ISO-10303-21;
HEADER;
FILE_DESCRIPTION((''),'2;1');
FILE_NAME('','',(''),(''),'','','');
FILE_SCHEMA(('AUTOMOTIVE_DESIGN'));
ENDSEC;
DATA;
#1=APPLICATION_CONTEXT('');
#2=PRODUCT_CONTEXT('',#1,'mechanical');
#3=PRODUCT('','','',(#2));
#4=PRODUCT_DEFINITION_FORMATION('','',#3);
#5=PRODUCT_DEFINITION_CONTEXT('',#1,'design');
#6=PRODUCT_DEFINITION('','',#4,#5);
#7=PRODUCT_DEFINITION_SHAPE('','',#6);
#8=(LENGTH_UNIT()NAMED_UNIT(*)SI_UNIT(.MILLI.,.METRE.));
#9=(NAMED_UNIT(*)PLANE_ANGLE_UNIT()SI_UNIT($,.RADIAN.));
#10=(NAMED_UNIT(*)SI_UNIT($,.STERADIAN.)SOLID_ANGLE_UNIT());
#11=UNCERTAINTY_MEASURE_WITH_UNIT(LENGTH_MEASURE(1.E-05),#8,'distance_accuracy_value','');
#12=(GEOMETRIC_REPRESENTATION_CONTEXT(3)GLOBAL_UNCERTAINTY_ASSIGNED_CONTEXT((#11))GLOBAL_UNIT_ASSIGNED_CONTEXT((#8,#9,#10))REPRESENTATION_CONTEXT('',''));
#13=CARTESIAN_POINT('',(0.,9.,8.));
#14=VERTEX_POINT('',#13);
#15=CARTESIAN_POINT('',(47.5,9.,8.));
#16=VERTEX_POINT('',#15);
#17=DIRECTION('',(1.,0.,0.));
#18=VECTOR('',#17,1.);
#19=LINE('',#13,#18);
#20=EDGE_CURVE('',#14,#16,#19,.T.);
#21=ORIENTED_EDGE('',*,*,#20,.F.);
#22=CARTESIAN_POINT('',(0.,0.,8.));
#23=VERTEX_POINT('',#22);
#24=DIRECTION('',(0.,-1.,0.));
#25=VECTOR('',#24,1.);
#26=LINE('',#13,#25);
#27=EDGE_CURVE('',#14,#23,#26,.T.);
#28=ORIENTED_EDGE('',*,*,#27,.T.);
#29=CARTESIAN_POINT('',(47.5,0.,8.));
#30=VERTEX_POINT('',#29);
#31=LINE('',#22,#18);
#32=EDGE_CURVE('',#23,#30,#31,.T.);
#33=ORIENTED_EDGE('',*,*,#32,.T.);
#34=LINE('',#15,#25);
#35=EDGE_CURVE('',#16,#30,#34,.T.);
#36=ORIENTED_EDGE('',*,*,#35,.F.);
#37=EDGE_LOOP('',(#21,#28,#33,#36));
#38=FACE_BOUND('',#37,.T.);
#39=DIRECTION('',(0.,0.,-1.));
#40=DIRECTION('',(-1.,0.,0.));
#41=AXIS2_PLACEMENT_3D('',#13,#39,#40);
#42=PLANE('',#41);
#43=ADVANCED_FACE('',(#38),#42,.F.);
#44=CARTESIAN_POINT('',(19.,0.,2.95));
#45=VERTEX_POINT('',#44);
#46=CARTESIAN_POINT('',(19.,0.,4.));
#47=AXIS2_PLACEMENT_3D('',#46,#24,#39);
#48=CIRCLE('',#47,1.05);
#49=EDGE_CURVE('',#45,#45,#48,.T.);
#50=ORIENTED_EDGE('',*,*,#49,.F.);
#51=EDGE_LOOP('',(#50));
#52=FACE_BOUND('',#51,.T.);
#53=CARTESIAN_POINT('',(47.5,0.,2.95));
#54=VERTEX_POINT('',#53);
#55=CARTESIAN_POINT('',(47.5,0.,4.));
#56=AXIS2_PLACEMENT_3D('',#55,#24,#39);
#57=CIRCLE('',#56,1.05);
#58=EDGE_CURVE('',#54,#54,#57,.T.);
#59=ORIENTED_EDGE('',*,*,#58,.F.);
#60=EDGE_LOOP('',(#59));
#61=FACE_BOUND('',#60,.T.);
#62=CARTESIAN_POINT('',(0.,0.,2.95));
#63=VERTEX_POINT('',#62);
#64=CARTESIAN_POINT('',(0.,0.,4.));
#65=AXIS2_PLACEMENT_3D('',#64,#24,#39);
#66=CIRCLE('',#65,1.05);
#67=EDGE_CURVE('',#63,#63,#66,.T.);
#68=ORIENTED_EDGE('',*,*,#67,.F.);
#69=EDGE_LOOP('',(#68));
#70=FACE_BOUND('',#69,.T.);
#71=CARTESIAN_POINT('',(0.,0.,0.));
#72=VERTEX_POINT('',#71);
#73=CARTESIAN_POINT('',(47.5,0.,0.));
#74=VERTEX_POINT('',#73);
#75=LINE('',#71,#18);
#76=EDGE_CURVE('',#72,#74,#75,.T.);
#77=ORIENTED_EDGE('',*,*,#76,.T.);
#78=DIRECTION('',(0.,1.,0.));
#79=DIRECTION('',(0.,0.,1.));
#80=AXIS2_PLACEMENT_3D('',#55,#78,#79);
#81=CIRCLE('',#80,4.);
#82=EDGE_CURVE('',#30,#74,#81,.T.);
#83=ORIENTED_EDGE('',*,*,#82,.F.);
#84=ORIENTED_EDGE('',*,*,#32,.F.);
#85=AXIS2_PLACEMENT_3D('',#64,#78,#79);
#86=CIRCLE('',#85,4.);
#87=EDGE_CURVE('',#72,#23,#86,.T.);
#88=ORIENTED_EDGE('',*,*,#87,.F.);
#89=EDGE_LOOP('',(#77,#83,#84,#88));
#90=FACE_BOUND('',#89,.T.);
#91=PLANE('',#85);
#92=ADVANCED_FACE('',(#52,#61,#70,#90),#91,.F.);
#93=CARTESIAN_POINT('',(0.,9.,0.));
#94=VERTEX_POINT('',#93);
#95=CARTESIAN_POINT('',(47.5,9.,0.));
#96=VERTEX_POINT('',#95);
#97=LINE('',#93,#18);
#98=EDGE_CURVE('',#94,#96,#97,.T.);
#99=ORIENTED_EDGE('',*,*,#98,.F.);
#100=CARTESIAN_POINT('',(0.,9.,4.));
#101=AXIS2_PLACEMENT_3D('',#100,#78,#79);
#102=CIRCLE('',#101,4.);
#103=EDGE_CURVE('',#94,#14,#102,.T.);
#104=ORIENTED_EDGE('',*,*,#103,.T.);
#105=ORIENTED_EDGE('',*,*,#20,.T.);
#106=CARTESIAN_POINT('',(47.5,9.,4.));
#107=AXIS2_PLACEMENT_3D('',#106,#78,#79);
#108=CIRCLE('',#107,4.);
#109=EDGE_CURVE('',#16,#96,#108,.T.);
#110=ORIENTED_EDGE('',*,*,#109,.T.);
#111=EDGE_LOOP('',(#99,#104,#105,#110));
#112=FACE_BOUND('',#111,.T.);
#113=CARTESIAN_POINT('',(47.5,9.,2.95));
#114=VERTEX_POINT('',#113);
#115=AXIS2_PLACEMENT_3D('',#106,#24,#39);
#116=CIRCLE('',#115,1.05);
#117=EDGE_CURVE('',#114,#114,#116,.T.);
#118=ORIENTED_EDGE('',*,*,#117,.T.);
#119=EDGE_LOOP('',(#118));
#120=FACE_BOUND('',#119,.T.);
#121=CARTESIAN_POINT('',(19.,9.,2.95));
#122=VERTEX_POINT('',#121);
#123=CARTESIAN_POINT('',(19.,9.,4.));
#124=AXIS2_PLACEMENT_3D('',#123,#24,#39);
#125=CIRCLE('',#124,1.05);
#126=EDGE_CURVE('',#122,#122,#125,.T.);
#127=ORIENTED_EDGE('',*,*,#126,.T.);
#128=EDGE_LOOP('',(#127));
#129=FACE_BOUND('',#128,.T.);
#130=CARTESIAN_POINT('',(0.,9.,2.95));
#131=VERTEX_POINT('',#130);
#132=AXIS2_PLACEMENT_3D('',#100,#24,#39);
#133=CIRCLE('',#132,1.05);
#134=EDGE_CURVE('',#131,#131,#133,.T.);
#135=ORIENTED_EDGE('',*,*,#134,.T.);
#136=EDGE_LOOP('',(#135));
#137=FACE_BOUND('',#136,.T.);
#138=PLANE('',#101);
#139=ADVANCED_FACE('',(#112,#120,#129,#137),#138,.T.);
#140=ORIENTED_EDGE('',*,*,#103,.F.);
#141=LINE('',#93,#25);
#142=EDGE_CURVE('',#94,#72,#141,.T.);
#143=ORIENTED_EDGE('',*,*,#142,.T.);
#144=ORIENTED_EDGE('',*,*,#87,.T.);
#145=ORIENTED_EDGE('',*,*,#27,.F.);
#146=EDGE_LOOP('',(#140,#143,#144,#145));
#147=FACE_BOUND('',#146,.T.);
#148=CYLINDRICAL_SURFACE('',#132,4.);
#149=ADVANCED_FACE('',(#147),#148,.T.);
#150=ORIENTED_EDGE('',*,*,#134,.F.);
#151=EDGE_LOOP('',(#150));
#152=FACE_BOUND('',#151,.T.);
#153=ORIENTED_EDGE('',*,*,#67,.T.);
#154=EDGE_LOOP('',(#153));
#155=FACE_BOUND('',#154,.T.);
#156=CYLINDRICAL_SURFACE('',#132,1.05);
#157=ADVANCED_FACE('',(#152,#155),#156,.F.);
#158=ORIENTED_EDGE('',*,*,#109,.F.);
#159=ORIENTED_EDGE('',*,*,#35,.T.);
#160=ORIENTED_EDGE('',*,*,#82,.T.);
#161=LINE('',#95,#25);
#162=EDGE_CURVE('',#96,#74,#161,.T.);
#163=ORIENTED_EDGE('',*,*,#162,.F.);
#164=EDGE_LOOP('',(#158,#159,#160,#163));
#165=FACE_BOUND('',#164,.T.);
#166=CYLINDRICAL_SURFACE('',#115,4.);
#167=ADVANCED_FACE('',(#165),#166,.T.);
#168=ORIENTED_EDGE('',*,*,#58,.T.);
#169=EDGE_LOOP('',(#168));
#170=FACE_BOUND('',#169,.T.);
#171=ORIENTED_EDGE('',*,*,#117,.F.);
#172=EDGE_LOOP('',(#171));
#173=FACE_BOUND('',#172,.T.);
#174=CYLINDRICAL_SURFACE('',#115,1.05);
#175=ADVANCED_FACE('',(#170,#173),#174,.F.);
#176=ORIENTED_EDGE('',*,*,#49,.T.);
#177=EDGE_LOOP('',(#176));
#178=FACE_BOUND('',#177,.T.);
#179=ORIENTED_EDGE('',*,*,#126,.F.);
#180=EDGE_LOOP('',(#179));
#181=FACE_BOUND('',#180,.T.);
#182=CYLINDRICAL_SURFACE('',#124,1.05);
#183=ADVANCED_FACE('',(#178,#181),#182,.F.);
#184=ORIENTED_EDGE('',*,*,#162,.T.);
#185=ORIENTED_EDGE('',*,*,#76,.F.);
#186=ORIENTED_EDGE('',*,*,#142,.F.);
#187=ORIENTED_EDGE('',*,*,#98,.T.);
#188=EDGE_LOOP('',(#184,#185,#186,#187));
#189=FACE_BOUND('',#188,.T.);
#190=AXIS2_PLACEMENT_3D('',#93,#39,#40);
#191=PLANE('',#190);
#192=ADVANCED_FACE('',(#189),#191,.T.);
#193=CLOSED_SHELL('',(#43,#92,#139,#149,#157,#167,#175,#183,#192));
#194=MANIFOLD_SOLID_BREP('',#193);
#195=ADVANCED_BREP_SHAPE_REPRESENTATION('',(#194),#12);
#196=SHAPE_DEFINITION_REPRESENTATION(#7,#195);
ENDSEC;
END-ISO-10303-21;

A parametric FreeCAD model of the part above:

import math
import FreeCAD as App
import Part
import Sketcher
from FreeCAD import Vector

doc = App.newDocument("Part")
body = doc.addObject("PartDesign::Body", "Body")

sketch1 = body.newObject("Sketcher::SketchObject", "Sketch")
sketch1.AttachmentSupport = (doc.getObject("XZ_Plane"), [""])
sketch1.MapMode = "FlatFace"
sketch1.addGeometry(Part.LineSegment(Vector(47.5, 0, 0), Vector(0, 0, 0)), False)
sketch1.addGeometry(Part.ArcOfCircle(Part.Circle(Vector(0, 4, 0), Vector(0, 0, 1), 4), math.radians(90), math.radians(270)), False)
sketch1.addGeometry(Part.LineSegment(Vector(0, 8, 0), Vector(47.5, 8, 0)), False)
sketch1.addGeometry(Part.ArcOfCircle(Part.Circle(Vector(47.5, 4, 0), Vector(0, 0, 1), 4), math.radians(-90), math.radians(90)), False)
sketch1.addConstraint(Sketcher.Constraint("Tangent", 0, 2, 1, 2))
sketch1.addConstraint(Sketcher.Constraint("Tangent", 1, 1, 2, 1))
sketch1.addConstraint(Sketcher.Constraint("Tangent", 2, 2, 3, 2))
sketch1.addConstraint(Sketcher.Constraint("Tangent", 3, 1, 0, 1))
sketch1.addConstraint(Sketcher.Constraint("Horizontal", 0))
sketch1.addConstraint(Sketcher.Constraint("Horizontal", 2))
sketch1.addConstraint(Sketcher.Constraint("Coincident", 0, 2, -1, 1))
sketch1.addConstraint(Sketcher.Constraint("Radius", 1, 4.0))
sketch1.addConstraint(Sketcher.Constraint("DistanceX", 0, 2, 0, 1, 47.5))
pad1 = body.newObject("PartDesign::Pad", "Pad")
pad1.Profile = sketch1
pad1.Length = 9
pad1.Reversed = True

sketch2 = body.newObject("Sketcher::SketchObject", "Sketch001")
sketch2.AttachmentSupport = (doc.getObject("XZ_Plane"), [""])
sketch2.MapMode = "FlatFace"
sketch2.addGeometry(Part.Circle(Vector(0, 4, 0), Vector(0, 0, 1), 1.1), False)
sketch2.addGeometry(Part.Circle(Vector(19, 4, 0), Vector(0, 0, 1), 1.1), False)
sketch2.addGeometry(Part.Circle(Vector(47.5, 4, 0), Vector(0, 0, 1), 1.1), False)
sketch2.addConstraint(Sketcher.Constraint("Equal", 0, 1))
sketch2.addConstraint(Sketcher.Constraint("Equal", 1, 2))
sketch2.addConstraint(Sketcher.Constraint("PointOnObject", 0, 3, -2))
sketch2.addConstraint(Sketcher.Constraint("Horizontal", 0, 3, 1, 3))
sketch2.addConstraint(Sketcher.Constraint("Horizontal", 1, 3, 2, 3))
sketch2.addConstraint(Sketcher.Constraint("Diameter", 0, 2.1))
sketch2.addConstraint(Sketcher.Constraint("DistanceY", -1, 1, 0, 3, 4.0))
sketch2.addConstraint(Sketcher.Constraint("DistanceX", -1, 1, 1, 3, 19.0))
sketch2.addConstraint(Sketcher.Constraint("DistanceX", -1, 1, 2, 3, 47.5))
pocket1 = body.newObject("PartDesign::Pocket", "Pocket")
pocket1.Profile = sketch2
pocket1.Length = 9

doc.recompute()
